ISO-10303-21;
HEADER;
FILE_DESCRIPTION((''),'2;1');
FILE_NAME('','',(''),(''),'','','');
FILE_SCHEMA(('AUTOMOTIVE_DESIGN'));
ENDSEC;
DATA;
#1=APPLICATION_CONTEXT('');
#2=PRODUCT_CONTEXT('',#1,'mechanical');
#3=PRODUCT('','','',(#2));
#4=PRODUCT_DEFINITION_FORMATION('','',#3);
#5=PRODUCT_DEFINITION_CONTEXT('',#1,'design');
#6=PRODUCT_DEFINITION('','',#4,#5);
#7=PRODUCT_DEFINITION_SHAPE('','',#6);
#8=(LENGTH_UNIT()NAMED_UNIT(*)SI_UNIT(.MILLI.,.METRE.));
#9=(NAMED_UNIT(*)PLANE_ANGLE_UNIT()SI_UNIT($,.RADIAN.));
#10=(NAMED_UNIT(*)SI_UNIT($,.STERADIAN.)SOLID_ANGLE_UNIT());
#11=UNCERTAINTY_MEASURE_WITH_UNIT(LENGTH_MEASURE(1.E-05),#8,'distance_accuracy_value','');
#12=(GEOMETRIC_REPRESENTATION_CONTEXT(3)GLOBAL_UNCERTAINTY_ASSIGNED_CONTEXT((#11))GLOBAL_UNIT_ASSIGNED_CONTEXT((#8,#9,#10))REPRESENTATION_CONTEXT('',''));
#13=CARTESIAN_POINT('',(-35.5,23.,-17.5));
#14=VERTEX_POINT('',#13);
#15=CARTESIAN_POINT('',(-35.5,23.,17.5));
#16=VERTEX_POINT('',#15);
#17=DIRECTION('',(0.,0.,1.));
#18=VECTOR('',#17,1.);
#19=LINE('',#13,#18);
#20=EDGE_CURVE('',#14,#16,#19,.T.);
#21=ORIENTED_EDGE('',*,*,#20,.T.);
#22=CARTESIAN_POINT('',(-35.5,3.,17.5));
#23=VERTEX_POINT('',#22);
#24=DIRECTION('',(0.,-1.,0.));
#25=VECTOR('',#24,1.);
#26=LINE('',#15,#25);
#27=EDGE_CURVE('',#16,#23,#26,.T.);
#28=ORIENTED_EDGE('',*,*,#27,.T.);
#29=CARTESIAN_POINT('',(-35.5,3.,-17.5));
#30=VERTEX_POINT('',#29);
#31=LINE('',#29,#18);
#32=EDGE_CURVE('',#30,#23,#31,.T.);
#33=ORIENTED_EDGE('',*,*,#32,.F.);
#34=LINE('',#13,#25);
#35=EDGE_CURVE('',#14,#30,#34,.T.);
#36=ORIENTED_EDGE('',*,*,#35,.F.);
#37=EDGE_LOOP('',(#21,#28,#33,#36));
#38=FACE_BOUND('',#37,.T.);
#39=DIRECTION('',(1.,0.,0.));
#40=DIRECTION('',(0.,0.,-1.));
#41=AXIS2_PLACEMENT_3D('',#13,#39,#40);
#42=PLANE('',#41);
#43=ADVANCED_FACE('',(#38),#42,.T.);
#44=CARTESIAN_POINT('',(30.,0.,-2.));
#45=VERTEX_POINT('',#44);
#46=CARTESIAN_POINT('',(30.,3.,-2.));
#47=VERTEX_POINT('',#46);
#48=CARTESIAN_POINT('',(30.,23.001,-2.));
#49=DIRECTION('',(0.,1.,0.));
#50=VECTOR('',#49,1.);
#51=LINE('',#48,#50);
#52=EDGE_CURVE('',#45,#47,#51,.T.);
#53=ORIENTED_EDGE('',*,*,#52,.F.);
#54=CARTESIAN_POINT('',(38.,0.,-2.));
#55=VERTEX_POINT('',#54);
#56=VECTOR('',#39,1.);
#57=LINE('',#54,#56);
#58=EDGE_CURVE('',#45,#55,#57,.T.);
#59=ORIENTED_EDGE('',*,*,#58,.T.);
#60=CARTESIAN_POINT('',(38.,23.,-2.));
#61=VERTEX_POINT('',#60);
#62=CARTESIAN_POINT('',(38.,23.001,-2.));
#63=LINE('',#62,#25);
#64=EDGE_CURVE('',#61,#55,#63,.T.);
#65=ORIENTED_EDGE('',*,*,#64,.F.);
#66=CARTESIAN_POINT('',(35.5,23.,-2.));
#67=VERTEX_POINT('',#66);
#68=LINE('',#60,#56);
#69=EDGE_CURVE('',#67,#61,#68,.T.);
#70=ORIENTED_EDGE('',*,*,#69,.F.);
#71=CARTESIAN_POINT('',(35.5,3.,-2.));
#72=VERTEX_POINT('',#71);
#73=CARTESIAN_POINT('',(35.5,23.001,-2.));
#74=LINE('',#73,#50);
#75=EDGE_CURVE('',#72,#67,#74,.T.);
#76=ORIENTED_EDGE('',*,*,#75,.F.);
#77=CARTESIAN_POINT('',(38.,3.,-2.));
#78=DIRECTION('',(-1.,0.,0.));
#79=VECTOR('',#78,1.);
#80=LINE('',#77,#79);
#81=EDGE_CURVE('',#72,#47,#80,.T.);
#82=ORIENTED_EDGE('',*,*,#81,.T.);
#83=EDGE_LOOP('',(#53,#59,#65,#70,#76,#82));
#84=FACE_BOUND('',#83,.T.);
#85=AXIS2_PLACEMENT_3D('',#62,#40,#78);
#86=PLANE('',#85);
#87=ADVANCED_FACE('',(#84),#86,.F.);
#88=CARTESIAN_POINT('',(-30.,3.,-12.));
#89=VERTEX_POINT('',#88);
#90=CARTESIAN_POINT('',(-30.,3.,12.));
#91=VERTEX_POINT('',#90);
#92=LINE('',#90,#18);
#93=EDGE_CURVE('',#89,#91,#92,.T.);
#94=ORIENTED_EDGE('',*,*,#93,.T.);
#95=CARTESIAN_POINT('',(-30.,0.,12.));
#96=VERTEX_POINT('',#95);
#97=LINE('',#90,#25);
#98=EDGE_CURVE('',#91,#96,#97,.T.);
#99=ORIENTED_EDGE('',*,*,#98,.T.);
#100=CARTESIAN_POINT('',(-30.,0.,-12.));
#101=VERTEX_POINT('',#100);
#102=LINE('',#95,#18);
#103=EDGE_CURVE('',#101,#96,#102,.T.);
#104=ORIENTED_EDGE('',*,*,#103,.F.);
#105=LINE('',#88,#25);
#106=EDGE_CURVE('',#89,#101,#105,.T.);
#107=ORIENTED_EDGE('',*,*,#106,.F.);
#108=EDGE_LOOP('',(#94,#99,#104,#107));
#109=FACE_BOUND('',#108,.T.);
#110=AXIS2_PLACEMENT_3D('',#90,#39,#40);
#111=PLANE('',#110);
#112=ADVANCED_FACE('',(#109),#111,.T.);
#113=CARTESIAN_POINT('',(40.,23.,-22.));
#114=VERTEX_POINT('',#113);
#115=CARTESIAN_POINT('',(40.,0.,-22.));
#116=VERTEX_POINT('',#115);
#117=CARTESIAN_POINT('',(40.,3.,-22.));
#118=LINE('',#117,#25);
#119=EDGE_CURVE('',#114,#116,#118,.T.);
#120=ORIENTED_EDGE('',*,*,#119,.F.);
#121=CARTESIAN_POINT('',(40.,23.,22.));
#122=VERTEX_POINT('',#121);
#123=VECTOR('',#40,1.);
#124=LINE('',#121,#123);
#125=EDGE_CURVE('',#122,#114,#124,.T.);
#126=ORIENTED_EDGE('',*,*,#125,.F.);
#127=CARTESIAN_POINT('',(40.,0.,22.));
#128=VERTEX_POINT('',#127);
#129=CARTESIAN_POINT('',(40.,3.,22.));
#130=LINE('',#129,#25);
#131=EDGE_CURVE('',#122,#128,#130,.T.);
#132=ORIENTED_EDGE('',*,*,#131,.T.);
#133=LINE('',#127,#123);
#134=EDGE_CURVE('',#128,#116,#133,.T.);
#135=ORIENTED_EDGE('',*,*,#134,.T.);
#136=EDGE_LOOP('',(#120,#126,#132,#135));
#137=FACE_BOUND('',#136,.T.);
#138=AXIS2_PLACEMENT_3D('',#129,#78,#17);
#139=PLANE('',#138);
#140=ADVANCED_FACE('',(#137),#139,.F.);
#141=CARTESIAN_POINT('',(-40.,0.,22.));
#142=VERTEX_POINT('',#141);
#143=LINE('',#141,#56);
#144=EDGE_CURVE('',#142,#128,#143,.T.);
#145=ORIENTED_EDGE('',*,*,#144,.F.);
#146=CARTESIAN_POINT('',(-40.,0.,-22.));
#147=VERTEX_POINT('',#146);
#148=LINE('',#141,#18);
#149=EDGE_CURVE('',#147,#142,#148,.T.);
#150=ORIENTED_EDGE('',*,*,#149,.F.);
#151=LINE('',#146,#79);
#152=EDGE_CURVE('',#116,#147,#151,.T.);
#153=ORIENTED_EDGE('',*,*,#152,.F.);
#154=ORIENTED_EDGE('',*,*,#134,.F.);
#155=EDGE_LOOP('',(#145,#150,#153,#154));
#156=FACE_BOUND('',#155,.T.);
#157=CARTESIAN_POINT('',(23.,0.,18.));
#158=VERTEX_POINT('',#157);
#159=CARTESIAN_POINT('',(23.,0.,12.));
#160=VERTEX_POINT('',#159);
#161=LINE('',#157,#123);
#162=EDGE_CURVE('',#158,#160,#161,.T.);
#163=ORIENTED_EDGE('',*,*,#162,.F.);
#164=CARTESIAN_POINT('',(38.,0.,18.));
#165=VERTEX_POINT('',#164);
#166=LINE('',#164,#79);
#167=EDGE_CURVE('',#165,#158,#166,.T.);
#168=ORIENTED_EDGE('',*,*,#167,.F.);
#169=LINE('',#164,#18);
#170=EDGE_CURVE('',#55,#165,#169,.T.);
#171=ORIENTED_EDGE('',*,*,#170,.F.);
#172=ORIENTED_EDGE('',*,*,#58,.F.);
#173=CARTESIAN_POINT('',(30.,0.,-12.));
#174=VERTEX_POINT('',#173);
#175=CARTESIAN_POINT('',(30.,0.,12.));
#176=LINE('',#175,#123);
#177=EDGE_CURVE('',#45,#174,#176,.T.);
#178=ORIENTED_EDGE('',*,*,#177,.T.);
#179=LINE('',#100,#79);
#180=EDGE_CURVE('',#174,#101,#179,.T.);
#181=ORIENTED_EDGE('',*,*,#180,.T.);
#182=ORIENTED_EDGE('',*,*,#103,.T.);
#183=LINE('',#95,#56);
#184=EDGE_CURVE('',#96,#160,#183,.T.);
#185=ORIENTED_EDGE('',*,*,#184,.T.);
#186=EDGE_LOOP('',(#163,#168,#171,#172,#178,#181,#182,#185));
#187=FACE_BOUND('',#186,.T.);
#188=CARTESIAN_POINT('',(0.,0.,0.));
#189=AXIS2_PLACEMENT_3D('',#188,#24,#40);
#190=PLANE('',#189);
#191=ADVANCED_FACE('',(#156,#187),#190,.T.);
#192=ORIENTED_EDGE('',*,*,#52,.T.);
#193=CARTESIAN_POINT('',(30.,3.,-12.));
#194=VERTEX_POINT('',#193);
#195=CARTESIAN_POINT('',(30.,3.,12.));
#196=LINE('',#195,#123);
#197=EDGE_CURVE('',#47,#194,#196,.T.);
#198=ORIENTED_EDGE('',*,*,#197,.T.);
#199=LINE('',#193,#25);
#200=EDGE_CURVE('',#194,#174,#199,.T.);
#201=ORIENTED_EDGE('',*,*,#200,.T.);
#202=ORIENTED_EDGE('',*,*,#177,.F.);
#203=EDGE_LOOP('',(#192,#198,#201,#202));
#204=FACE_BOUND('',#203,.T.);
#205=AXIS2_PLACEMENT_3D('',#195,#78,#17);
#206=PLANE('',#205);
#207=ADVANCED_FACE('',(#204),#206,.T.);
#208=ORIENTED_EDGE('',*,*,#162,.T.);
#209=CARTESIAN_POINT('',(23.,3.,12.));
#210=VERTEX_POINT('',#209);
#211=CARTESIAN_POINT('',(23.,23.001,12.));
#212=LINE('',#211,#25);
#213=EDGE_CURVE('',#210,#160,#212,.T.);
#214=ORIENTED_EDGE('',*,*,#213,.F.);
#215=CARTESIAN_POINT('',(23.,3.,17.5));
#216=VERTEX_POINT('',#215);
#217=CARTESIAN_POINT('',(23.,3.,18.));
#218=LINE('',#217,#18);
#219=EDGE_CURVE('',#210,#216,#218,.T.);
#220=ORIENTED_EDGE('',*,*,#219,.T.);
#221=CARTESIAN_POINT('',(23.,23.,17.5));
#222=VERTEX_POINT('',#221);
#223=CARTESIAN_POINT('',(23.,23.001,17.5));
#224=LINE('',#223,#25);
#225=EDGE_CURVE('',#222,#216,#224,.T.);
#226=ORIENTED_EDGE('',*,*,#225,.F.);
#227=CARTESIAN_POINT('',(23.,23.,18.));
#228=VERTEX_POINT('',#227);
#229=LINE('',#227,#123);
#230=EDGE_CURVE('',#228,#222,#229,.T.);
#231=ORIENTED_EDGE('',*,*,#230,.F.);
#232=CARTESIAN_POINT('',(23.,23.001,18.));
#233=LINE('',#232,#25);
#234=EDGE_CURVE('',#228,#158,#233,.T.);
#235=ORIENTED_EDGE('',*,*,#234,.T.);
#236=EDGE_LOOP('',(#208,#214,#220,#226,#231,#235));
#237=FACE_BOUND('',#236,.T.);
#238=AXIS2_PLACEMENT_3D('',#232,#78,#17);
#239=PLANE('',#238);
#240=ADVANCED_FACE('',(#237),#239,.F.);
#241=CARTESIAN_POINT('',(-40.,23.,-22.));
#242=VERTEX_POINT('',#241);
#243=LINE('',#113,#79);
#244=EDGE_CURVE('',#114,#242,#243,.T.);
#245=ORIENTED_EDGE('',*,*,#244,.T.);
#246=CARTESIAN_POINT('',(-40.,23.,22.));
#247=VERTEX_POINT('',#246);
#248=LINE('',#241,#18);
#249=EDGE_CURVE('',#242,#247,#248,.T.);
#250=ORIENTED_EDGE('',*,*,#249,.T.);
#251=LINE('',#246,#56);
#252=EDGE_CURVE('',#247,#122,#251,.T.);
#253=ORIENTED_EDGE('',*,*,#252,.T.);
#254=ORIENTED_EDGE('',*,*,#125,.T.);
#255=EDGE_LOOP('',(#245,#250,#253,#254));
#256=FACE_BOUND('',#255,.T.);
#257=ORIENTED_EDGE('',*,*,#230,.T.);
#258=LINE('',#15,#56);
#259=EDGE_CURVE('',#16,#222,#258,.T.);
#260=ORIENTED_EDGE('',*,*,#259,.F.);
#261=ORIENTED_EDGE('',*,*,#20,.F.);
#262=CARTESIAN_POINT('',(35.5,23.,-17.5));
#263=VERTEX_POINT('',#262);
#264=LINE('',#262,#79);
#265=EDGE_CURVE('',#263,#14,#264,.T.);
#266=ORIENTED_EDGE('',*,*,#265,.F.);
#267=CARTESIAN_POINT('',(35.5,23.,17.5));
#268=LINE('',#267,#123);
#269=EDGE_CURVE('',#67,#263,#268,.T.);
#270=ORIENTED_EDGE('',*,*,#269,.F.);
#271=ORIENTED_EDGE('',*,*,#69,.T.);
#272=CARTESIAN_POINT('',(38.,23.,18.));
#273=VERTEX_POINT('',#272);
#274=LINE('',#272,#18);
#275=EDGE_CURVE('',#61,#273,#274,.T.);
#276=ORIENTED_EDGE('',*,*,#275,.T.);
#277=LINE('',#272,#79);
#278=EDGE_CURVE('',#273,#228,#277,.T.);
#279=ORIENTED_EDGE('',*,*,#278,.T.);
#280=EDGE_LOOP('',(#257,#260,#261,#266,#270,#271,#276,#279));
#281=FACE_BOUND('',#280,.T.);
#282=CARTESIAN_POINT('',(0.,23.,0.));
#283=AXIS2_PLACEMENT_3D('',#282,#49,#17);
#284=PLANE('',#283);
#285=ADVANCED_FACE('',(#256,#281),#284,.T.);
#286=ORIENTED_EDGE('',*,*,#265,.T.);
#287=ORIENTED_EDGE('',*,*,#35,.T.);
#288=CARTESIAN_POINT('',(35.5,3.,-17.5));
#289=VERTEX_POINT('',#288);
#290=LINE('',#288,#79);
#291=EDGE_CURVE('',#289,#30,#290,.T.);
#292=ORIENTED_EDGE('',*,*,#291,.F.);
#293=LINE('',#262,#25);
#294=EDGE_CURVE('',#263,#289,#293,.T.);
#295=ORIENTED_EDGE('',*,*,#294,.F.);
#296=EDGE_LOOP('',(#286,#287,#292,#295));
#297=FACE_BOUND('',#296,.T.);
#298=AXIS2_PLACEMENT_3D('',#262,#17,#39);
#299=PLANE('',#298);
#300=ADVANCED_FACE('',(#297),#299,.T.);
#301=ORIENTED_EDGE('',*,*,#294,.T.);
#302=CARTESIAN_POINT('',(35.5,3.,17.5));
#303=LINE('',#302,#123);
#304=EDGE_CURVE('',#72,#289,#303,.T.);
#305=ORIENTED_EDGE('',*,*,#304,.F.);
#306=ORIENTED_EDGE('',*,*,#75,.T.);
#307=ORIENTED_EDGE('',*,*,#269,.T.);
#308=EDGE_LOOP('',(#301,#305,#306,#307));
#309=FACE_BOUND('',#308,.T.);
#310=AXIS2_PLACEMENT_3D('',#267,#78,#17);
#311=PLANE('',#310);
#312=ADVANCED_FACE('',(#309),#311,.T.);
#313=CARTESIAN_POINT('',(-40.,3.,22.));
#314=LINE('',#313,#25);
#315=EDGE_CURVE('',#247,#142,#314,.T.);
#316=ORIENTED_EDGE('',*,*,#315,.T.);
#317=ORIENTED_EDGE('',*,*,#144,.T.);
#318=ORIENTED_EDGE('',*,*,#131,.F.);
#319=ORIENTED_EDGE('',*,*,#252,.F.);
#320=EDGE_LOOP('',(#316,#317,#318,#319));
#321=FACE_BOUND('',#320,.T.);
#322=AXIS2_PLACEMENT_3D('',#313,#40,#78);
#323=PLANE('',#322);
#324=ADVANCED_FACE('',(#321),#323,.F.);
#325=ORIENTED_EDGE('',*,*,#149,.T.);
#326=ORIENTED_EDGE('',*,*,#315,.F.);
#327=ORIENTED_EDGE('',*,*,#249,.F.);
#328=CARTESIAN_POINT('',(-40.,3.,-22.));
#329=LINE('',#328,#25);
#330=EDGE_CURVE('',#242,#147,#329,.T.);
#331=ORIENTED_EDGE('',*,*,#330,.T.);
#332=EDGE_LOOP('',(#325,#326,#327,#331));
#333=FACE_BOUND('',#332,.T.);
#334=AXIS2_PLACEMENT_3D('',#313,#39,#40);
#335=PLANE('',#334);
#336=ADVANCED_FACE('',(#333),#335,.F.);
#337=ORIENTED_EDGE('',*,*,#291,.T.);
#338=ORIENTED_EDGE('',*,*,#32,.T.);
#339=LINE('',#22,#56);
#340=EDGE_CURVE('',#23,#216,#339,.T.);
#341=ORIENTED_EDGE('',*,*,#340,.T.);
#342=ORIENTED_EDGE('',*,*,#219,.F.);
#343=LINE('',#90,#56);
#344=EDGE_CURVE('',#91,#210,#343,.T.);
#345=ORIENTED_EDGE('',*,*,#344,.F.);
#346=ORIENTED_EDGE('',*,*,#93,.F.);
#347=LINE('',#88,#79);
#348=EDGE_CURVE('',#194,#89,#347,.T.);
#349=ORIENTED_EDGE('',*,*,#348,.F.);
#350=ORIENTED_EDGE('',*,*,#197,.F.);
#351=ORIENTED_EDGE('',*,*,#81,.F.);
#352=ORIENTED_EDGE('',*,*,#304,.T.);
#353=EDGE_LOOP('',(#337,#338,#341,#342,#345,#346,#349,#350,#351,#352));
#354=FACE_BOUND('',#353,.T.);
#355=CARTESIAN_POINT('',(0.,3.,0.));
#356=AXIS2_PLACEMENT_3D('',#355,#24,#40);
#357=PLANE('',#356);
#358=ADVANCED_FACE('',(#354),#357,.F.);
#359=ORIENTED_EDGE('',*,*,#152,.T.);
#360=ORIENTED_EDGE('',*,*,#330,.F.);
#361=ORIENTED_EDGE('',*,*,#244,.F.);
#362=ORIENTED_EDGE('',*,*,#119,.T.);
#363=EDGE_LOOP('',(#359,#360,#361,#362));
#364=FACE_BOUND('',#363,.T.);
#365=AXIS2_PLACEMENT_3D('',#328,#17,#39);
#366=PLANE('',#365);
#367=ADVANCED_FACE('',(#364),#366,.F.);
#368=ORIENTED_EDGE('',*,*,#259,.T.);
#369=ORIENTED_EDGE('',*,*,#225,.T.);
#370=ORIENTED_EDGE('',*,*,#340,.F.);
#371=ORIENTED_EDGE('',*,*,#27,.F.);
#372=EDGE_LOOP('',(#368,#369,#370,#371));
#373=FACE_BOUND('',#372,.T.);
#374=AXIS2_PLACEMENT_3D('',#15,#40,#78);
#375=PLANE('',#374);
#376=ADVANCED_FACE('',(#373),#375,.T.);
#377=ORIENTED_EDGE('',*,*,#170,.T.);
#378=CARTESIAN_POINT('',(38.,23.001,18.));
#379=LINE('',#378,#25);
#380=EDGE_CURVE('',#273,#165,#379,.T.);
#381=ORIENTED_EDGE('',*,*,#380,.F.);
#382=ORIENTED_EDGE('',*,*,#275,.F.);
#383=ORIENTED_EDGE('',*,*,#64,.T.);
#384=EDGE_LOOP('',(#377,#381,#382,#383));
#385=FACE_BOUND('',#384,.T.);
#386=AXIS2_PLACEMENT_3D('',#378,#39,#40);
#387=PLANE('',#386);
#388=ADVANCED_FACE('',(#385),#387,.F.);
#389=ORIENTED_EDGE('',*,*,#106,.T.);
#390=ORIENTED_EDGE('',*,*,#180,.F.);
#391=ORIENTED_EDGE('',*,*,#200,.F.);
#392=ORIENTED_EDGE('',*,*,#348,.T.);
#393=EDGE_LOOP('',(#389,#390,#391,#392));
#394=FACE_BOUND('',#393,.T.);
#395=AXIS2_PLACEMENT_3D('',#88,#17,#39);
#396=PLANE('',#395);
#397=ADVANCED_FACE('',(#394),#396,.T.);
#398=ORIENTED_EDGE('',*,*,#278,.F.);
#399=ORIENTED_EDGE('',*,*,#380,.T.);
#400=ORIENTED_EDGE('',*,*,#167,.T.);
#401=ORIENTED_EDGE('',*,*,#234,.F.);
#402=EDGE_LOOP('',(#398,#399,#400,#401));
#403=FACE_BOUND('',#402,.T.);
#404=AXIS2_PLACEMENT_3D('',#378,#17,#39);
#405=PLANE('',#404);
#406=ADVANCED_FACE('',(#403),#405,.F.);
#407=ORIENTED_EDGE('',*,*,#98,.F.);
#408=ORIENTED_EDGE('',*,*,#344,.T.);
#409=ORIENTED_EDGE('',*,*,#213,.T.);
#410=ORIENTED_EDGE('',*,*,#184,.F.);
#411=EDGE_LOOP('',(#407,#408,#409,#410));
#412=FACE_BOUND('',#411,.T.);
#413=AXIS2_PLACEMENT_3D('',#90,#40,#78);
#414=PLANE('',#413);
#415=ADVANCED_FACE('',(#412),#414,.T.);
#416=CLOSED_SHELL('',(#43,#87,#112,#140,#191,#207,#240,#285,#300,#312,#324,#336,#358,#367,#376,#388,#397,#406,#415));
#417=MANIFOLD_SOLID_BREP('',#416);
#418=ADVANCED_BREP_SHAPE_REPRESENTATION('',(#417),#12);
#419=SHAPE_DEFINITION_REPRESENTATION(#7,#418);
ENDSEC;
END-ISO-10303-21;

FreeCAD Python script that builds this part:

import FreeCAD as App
import Part
import Sketcher
Q = App.Units.Quantity


def add_polygon(sketch, points):
    """Adds a closed chain of lines whose ends are joined by coincident constraints."""
    first, n = sketch.GeometryCount, len(points)
    for a, b in zip(points, points[1:] + points[:1]):
        sketch.addGeometry(Part.LineSegment(App.Vector(*a, 0), App.Vector(*b, 0)), False)
    for i in range(n):
        sketch.addConstraint(Sketcher.Constraint("Coincident", first + i, 2, first + (i + 1) % n, 1))

doc = App.newDocument("Part")
params = doc.addObject("Spreadsheet::Sheet", "Params")
for row, (alias, value) in enumerate([
    ("sketch1_width", "80 mm"),
    ("sketch1_width2", "60 mm"),
    ("sketch1_height", "44 mm"),
    ("sketch1_height2", "24 mm"),
    ("pad1_length", "3 mm"),
    ("sketch2_width", "80 mm"),
    ("sketch2_width2", "71 mm"),
    ("sketch2_height", "44 mm"),
    ("sketch2_height2", "35 mm"),
    ("pad2_length", "20 mm"),
    ("sketch3_width", "15 mm"),
    ("sketch3_height", "20 mm"),
    ("pocket1_length", "23 mm"),
], start=1):
    params.set(f"A{row}", alias)
    params.set(f"B{row}", "=" + value)
    params.setAlias(f"B{row}", alias)

body = doc.addObject("PartDesign::Body", "Body")

# Sketch on XZ plane
sketch1 = doc.addObject("Sketcher::SketchObject", "Sketch")
body.addObject(sketch1)
sketch1.AttachmentSupport = (doc.XZ_Plane, [""])
sketch1.MapMode = "FlatFace"
add_polygon(sketch1, [(-40, -22), (-40, 22), (40, 22), (40, -22)])  # lines 0-3
add_polygon(sketch1, [(30, 12), (-30, 12), (-30, -12), (30, -12)])  # lines 4-7
sketch1.addConstraint([
    Sketcher.Constraint("Vertical", 0),
    Sketcher.Constraint("Horizontal", 1),
    Sketcher.Constraint("Vertical", 2),
    Sketcher.Constraint("Horizontal", 3),
    Sketcher.Constraint("Horizontal", 4),
    Sketcher.Constraint("Vertical", 5),
    Sketcher.Constraint("Horizontal", 6),
    Sketcher.Constraint("Vertical", 7),
    Sketcher.Constraint("Symmetric", 0, 2, 2, 2, -1, 1),
    Sketcher.Constraint("Symmetric", 4, 2, 6, 2, -1, 1),
    Sketcher.Constraint("DistanceX", 1, 1, 1, 2, Q("80 mm")),
    Sketcher.Constraint("DistanceX", 4, 2, 4, 1, Q("60 mm")),
    Sketcher.Constraint("DistanceY", 0, 1, 0, 2, Q("44 mm")),
    Sketcher.Constraint("DistanceY", 5, 2, 5, 1, Q("24 mm")),
])
sketch1.setExpression("Constraints[18]", "Params.sketch1_width")
sketch1.setExpression("Constraints[19]", "Params.sketch1_width2")
sketch1.setExpression("Constraints[20]", "Params.sketch1_height")
sketch1.setExpression("Constraints[21]", "Params.sketch1_height2")
pad1 = doc.addObject("PartDesign::Pad", "Pad")
body.addObject(pad1)
pad1.Profile = sketch1
pad1.setExpression("Length", "Params.pad1_length")
pad1.Reversed = True

# Sketch on XZ plane
sketch2 = doc.addObject("Sketcher::SketchObject", "Sketch001")
body.addObject(sketch2)
sketch2.AttachmentSupport = (doc.XZ_Plane, [""])
sketch2.MapMode = "FlatFace"
sketch2.AttachmentOffset = App.Placement(App.Vector(0, 0, -3), App.Rotation())
add_polygon(sketch2, [(-40, -22), (-40, 22), (40, 22), (40, -22)])  # lines 0-3
add_polygon(sketch2, [(35.5, 17.5), (-35.5, 17.5), (-35.5, -17.5), (35.5, -17.5)])  # lines 4-7
sketch2.addConstraint([
    Sketcher.Constraint("Vertical", 0),
    Sketcher.Constraint("Horizontal", 1),
    Sketcher.Constraint("Vertical", 2),
    Sketcher.Constraint("Horizontal", 3),
    Sketcher.Constraint("Horizontal", 4),
    Sketcher.Constraint("Vertical", 5),
    Sketcher.Constraint("Horizontal", 6),
    Sketcher.Constraint("Vertical", 7),
    Sketcher.Constraint("Symmetric", 0, 2, 2, 2, -1, 1),
    Sketcher.Constraint("Symmetric", 4, 2, 6, 2, -1, 1),
    Sketcher.Constraint("DistanceX", 1, 1, 1, 2, Q("80 mm")),
    Sketcher.Constraint("DistanceX", 4, 2, 4, 1, Q("71 mm")),
    Sketcher.Constraint("DistanceY", 0, 1, 0, 2, Q("44 mm")),
    Sketcher.Constraint("DistanceY", 5, 2, 5, 1, Q("35 mm")),
])
sketch2.setExpression("Constraints[18]", "Params.sketch2_width")
sketch2.setExpression("Constraints[19]", "Params.sketch2_width2")
sketch2.setExpression("Constraints[20]", "Params.sketch2_height")
sketch2.setExpression("Constraints[21]", "Params.sketch2_height2")
pad2 = doc.addObject("PartDesign::Pad", "Pad001")
body.addObject(pad2)
pad2.Profile = sketch2
pad2.setExpression("Length", "Params.pad2_length")
pad2.Reversed = True

# Sketch on XZ plane
sketch3 = doc.addObject("Sketcher::SketchObject", "Sketch002")
body.addObject(sketch3)
sketch3.AttachmentSupport = (doc.XZ_Plane, [""])
sketch3.MapMode = "FlatFace"
add_polygon(sketch3, [(38, -2), (38, 18), (23, 18), (23, -2)])  # lines 0-3
sketch3.addConstraint([
    Sketcher.Constraint("Vertical", 0),
    Sketcher.Constraint("Horizontal", 1),
    Sketcher.Constraint("Vertical", 2),
    Sketcher.Constraint("Horizontal", 3),
    Sketcher.Constraint("DistanceX", 1, 2, 1, 1, Q("15 mm")),
    Sketcher.Constraint("DistanceY", 0, 1, 0, 2, Q("20 mm")),
    Sketcher.Constraint("DistanceX", -1, 1, 0, 2, Q("38 mm")),
    Sketcher.Constraint("DistanceY", -1, 1, 0, 2, Q("18 mm")),
])
sketch3.setExpression("Constraints[8]", "Params.sketch3_width")
sketch3.setExpression("Constraints[9]", "Params.sketch3_height")
pocket1 = doc.addObject("PartDesign::Pocket", "Pocket")
body.addObject(pocket1)
pocket1.Profile = sketch3
pocket1.setExpression("Length", "Params.pocket1_length")

doc.recompute()
